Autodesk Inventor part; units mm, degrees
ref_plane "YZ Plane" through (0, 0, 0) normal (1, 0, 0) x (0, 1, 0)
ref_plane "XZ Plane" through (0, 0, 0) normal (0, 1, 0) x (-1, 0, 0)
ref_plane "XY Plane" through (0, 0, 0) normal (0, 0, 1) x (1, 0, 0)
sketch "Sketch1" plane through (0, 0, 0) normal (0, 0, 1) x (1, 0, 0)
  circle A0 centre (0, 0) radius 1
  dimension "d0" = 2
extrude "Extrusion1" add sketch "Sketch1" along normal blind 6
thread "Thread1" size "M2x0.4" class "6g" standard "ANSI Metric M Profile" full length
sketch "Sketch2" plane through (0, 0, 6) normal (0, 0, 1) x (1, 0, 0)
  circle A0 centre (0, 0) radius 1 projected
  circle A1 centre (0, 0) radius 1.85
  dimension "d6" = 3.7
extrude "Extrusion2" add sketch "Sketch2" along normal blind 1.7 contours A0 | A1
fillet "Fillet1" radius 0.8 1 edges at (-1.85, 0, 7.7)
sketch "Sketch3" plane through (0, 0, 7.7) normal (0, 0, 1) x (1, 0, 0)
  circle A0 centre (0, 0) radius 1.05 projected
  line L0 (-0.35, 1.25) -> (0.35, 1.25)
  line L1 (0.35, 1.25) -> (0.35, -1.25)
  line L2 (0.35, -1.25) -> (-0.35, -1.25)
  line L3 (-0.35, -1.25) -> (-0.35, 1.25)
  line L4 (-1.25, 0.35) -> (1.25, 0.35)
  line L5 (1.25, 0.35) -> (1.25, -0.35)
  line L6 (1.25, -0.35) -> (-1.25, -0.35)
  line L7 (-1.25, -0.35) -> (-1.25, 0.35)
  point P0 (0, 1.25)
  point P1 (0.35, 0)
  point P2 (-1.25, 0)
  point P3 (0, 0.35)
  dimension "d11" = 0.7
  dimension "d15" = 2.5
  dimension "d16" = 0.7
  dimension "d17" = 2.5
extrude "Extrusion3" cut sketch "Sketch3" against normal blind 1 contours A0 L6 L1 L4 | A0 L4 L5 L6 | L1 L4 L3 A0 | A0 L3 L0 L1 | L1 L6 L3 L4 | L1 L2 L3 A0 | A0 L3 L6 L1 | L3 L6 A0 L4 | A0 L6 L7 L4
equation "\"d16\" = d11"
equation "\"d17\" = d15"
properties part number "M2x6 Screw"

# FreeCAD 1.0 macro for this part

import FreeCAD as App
import Part
import Sketcher
from FreeCAD import Vector


def edges_at(feature, points):
    """Names of the edges that pass closest to the given points."""
    edges = feature.Shape.Edges
    near = lambda p: min(range(len(edges)), key=lambda i: edges[i].distToShape(Part.Vertex(*p))[0])
    return sorted({f"Edge{near(p) + 1}" for p in points})


def add_polygon(sketch, points):
    """Adds a closed chain of lines whose ends are joined by coincident constraints."""
    first, n = sketch.GeometryCount, len(points)
    for a, b in zip(points, points[1:] + points[:1]):
        sketch.addGeometry(Part.LineSegment(App.Vector(*a, 0), App.Vector(*b, 0)), False)
    for i in range(n):
        sketch.addConstraint(Sketcher.Constraint("Coincident", first + i, 2, first + (i + 1) % n, 1))

doc = App.newDocument("Part")
body = doc.addObject("PartDesign::Body", "Body")

# Sketch on XY plane
sketch1 = body.newObject("Sketcher::SketchObject", "Sketch")
sketch1.AttachmentSupport = (doc.getObject("XY_Plane"), [""])
sketch1.MapMode = "FlatFace"
sketch1.addGeometry(Part.Circle(Vector(0, 0, 0), Vector(0, 0, 1), 1), False)
sketch1.addConstraint([
    Sketcher.Constraint("Coincident", 0, 3, -1, 1),
    Sketcher.Constraint("Diameter", 0, 2.0),
])
pad1 = body.newObject("PartDesign::Pad", "Pad")
pad1.Profile = sketch1
pad1.Length = 6

# Sketch on XY plane
sketch2 = body.newObject("Sketcher::SketchObject", "Sketch001")
sketch2.AttachmentSupport = (doc.getObject("XY_Plane"), [""])
sketch2.MapMode = "FlatFace"
sketch2.AttachmentOffset = App.Placement(Vector(0, 0, 6), App.Rotation())
sketch2.addGeometry(Part.Circle(Vector(0, 0, 0), Vector(0, 0, 1), 1.85), False)
sketch2.addConstraint([
    Sketcher.Constraint("Coincident", 0, 3, -1, 1),
    Sketcher.Constraint("Diameter", 0, 3.7),
])
pad2 = body.newObject("PartDesign::Pad", "Pad001")
pad2.Profile = sketch2
pad2.Length = 1.7
doc.recompute()

fillet = body.newObject("PartDesign::Fillet", "Fillet")
fillet.Base = (pad2, edges_at(pad2, [(-1.85, 0, 7.7)]))
fillet.Radius = 0.8

# Sketch on XY plane
sketch3 = body.newObject("Sketcher::SketchObject", "Sketch002")
sketch3.AttachmentSupport = (doc.getObject("XY_Plane"), [""])
sketch3.MapMode = "FlatFace"
sketch3.AttachmentOffset = App.Placement(Vector(0, 0, 7.7), App.Rotation())
add_polygon(sketch3, [(0.35, -0.35), (1.25, -0.35), (1.25, 0.35), (0.35, 0.35), (0.35, 1.25), (-0.35, 1.25), (-0.35, 0.35), (-1.25, 0.35), (-1.25, -0.35), (-0.35, -0.35), (-0.35, -1.25), (0.35, -1.25)])  # lines 0-11
sketch3.addConstraint([
    Sketcher.Constraint("Horizontal", 0),
    Sketcher.Constraint("Vertical", 1),
    Sketcher.Constraint("Horizontal", 2),
    Sketcher.Constraint("Vertical", 3),
    Sketcher.Constraint("Horizontal", 4),
    Sketcher.Constraint("Vertical", 5),
    Sketcher.Constraint("Horizontal", 6),
    Sketcher.Constraint("Vertical", 7),
    Sketcher.Constraint("Horizontal", 8),
    Sketcher.Constraint("Vertical", 9),
    Sketcher.Constraint("Horizontal", 10),
    Sketcher.Constraint("Vertical", 11),
    Sketcher.Constraint("Symmetric", 0, 2, 6, 2, -1, 1),
    Sketcher.Constraint("Symmetric", 2, 2, 8, 2, -1, 1),
    Sketcher.Constraint("Symmetric", 4, 2, 10, 2, -1, 1),
    Sketcher.Constraint("Symmetric", 2, 2, 5, 2, -2),
    Sketcher.Constraint("Equal", 10, 1),
    Sketcher.Constraint("Equal", 8, 3),
    Sketcher.Constraint("DistanceX", 4, 2, 4, 1, 0.7),
    Sketcher.Constraint("DistanceX", 6, 2, 1, 2, 2.5),
])
pocket1 = body.newObject("PartDesign::Pocket", "Pocket")
pocket1.Profile = sketch3
pocket1.Length = 1

doc.recompute()
